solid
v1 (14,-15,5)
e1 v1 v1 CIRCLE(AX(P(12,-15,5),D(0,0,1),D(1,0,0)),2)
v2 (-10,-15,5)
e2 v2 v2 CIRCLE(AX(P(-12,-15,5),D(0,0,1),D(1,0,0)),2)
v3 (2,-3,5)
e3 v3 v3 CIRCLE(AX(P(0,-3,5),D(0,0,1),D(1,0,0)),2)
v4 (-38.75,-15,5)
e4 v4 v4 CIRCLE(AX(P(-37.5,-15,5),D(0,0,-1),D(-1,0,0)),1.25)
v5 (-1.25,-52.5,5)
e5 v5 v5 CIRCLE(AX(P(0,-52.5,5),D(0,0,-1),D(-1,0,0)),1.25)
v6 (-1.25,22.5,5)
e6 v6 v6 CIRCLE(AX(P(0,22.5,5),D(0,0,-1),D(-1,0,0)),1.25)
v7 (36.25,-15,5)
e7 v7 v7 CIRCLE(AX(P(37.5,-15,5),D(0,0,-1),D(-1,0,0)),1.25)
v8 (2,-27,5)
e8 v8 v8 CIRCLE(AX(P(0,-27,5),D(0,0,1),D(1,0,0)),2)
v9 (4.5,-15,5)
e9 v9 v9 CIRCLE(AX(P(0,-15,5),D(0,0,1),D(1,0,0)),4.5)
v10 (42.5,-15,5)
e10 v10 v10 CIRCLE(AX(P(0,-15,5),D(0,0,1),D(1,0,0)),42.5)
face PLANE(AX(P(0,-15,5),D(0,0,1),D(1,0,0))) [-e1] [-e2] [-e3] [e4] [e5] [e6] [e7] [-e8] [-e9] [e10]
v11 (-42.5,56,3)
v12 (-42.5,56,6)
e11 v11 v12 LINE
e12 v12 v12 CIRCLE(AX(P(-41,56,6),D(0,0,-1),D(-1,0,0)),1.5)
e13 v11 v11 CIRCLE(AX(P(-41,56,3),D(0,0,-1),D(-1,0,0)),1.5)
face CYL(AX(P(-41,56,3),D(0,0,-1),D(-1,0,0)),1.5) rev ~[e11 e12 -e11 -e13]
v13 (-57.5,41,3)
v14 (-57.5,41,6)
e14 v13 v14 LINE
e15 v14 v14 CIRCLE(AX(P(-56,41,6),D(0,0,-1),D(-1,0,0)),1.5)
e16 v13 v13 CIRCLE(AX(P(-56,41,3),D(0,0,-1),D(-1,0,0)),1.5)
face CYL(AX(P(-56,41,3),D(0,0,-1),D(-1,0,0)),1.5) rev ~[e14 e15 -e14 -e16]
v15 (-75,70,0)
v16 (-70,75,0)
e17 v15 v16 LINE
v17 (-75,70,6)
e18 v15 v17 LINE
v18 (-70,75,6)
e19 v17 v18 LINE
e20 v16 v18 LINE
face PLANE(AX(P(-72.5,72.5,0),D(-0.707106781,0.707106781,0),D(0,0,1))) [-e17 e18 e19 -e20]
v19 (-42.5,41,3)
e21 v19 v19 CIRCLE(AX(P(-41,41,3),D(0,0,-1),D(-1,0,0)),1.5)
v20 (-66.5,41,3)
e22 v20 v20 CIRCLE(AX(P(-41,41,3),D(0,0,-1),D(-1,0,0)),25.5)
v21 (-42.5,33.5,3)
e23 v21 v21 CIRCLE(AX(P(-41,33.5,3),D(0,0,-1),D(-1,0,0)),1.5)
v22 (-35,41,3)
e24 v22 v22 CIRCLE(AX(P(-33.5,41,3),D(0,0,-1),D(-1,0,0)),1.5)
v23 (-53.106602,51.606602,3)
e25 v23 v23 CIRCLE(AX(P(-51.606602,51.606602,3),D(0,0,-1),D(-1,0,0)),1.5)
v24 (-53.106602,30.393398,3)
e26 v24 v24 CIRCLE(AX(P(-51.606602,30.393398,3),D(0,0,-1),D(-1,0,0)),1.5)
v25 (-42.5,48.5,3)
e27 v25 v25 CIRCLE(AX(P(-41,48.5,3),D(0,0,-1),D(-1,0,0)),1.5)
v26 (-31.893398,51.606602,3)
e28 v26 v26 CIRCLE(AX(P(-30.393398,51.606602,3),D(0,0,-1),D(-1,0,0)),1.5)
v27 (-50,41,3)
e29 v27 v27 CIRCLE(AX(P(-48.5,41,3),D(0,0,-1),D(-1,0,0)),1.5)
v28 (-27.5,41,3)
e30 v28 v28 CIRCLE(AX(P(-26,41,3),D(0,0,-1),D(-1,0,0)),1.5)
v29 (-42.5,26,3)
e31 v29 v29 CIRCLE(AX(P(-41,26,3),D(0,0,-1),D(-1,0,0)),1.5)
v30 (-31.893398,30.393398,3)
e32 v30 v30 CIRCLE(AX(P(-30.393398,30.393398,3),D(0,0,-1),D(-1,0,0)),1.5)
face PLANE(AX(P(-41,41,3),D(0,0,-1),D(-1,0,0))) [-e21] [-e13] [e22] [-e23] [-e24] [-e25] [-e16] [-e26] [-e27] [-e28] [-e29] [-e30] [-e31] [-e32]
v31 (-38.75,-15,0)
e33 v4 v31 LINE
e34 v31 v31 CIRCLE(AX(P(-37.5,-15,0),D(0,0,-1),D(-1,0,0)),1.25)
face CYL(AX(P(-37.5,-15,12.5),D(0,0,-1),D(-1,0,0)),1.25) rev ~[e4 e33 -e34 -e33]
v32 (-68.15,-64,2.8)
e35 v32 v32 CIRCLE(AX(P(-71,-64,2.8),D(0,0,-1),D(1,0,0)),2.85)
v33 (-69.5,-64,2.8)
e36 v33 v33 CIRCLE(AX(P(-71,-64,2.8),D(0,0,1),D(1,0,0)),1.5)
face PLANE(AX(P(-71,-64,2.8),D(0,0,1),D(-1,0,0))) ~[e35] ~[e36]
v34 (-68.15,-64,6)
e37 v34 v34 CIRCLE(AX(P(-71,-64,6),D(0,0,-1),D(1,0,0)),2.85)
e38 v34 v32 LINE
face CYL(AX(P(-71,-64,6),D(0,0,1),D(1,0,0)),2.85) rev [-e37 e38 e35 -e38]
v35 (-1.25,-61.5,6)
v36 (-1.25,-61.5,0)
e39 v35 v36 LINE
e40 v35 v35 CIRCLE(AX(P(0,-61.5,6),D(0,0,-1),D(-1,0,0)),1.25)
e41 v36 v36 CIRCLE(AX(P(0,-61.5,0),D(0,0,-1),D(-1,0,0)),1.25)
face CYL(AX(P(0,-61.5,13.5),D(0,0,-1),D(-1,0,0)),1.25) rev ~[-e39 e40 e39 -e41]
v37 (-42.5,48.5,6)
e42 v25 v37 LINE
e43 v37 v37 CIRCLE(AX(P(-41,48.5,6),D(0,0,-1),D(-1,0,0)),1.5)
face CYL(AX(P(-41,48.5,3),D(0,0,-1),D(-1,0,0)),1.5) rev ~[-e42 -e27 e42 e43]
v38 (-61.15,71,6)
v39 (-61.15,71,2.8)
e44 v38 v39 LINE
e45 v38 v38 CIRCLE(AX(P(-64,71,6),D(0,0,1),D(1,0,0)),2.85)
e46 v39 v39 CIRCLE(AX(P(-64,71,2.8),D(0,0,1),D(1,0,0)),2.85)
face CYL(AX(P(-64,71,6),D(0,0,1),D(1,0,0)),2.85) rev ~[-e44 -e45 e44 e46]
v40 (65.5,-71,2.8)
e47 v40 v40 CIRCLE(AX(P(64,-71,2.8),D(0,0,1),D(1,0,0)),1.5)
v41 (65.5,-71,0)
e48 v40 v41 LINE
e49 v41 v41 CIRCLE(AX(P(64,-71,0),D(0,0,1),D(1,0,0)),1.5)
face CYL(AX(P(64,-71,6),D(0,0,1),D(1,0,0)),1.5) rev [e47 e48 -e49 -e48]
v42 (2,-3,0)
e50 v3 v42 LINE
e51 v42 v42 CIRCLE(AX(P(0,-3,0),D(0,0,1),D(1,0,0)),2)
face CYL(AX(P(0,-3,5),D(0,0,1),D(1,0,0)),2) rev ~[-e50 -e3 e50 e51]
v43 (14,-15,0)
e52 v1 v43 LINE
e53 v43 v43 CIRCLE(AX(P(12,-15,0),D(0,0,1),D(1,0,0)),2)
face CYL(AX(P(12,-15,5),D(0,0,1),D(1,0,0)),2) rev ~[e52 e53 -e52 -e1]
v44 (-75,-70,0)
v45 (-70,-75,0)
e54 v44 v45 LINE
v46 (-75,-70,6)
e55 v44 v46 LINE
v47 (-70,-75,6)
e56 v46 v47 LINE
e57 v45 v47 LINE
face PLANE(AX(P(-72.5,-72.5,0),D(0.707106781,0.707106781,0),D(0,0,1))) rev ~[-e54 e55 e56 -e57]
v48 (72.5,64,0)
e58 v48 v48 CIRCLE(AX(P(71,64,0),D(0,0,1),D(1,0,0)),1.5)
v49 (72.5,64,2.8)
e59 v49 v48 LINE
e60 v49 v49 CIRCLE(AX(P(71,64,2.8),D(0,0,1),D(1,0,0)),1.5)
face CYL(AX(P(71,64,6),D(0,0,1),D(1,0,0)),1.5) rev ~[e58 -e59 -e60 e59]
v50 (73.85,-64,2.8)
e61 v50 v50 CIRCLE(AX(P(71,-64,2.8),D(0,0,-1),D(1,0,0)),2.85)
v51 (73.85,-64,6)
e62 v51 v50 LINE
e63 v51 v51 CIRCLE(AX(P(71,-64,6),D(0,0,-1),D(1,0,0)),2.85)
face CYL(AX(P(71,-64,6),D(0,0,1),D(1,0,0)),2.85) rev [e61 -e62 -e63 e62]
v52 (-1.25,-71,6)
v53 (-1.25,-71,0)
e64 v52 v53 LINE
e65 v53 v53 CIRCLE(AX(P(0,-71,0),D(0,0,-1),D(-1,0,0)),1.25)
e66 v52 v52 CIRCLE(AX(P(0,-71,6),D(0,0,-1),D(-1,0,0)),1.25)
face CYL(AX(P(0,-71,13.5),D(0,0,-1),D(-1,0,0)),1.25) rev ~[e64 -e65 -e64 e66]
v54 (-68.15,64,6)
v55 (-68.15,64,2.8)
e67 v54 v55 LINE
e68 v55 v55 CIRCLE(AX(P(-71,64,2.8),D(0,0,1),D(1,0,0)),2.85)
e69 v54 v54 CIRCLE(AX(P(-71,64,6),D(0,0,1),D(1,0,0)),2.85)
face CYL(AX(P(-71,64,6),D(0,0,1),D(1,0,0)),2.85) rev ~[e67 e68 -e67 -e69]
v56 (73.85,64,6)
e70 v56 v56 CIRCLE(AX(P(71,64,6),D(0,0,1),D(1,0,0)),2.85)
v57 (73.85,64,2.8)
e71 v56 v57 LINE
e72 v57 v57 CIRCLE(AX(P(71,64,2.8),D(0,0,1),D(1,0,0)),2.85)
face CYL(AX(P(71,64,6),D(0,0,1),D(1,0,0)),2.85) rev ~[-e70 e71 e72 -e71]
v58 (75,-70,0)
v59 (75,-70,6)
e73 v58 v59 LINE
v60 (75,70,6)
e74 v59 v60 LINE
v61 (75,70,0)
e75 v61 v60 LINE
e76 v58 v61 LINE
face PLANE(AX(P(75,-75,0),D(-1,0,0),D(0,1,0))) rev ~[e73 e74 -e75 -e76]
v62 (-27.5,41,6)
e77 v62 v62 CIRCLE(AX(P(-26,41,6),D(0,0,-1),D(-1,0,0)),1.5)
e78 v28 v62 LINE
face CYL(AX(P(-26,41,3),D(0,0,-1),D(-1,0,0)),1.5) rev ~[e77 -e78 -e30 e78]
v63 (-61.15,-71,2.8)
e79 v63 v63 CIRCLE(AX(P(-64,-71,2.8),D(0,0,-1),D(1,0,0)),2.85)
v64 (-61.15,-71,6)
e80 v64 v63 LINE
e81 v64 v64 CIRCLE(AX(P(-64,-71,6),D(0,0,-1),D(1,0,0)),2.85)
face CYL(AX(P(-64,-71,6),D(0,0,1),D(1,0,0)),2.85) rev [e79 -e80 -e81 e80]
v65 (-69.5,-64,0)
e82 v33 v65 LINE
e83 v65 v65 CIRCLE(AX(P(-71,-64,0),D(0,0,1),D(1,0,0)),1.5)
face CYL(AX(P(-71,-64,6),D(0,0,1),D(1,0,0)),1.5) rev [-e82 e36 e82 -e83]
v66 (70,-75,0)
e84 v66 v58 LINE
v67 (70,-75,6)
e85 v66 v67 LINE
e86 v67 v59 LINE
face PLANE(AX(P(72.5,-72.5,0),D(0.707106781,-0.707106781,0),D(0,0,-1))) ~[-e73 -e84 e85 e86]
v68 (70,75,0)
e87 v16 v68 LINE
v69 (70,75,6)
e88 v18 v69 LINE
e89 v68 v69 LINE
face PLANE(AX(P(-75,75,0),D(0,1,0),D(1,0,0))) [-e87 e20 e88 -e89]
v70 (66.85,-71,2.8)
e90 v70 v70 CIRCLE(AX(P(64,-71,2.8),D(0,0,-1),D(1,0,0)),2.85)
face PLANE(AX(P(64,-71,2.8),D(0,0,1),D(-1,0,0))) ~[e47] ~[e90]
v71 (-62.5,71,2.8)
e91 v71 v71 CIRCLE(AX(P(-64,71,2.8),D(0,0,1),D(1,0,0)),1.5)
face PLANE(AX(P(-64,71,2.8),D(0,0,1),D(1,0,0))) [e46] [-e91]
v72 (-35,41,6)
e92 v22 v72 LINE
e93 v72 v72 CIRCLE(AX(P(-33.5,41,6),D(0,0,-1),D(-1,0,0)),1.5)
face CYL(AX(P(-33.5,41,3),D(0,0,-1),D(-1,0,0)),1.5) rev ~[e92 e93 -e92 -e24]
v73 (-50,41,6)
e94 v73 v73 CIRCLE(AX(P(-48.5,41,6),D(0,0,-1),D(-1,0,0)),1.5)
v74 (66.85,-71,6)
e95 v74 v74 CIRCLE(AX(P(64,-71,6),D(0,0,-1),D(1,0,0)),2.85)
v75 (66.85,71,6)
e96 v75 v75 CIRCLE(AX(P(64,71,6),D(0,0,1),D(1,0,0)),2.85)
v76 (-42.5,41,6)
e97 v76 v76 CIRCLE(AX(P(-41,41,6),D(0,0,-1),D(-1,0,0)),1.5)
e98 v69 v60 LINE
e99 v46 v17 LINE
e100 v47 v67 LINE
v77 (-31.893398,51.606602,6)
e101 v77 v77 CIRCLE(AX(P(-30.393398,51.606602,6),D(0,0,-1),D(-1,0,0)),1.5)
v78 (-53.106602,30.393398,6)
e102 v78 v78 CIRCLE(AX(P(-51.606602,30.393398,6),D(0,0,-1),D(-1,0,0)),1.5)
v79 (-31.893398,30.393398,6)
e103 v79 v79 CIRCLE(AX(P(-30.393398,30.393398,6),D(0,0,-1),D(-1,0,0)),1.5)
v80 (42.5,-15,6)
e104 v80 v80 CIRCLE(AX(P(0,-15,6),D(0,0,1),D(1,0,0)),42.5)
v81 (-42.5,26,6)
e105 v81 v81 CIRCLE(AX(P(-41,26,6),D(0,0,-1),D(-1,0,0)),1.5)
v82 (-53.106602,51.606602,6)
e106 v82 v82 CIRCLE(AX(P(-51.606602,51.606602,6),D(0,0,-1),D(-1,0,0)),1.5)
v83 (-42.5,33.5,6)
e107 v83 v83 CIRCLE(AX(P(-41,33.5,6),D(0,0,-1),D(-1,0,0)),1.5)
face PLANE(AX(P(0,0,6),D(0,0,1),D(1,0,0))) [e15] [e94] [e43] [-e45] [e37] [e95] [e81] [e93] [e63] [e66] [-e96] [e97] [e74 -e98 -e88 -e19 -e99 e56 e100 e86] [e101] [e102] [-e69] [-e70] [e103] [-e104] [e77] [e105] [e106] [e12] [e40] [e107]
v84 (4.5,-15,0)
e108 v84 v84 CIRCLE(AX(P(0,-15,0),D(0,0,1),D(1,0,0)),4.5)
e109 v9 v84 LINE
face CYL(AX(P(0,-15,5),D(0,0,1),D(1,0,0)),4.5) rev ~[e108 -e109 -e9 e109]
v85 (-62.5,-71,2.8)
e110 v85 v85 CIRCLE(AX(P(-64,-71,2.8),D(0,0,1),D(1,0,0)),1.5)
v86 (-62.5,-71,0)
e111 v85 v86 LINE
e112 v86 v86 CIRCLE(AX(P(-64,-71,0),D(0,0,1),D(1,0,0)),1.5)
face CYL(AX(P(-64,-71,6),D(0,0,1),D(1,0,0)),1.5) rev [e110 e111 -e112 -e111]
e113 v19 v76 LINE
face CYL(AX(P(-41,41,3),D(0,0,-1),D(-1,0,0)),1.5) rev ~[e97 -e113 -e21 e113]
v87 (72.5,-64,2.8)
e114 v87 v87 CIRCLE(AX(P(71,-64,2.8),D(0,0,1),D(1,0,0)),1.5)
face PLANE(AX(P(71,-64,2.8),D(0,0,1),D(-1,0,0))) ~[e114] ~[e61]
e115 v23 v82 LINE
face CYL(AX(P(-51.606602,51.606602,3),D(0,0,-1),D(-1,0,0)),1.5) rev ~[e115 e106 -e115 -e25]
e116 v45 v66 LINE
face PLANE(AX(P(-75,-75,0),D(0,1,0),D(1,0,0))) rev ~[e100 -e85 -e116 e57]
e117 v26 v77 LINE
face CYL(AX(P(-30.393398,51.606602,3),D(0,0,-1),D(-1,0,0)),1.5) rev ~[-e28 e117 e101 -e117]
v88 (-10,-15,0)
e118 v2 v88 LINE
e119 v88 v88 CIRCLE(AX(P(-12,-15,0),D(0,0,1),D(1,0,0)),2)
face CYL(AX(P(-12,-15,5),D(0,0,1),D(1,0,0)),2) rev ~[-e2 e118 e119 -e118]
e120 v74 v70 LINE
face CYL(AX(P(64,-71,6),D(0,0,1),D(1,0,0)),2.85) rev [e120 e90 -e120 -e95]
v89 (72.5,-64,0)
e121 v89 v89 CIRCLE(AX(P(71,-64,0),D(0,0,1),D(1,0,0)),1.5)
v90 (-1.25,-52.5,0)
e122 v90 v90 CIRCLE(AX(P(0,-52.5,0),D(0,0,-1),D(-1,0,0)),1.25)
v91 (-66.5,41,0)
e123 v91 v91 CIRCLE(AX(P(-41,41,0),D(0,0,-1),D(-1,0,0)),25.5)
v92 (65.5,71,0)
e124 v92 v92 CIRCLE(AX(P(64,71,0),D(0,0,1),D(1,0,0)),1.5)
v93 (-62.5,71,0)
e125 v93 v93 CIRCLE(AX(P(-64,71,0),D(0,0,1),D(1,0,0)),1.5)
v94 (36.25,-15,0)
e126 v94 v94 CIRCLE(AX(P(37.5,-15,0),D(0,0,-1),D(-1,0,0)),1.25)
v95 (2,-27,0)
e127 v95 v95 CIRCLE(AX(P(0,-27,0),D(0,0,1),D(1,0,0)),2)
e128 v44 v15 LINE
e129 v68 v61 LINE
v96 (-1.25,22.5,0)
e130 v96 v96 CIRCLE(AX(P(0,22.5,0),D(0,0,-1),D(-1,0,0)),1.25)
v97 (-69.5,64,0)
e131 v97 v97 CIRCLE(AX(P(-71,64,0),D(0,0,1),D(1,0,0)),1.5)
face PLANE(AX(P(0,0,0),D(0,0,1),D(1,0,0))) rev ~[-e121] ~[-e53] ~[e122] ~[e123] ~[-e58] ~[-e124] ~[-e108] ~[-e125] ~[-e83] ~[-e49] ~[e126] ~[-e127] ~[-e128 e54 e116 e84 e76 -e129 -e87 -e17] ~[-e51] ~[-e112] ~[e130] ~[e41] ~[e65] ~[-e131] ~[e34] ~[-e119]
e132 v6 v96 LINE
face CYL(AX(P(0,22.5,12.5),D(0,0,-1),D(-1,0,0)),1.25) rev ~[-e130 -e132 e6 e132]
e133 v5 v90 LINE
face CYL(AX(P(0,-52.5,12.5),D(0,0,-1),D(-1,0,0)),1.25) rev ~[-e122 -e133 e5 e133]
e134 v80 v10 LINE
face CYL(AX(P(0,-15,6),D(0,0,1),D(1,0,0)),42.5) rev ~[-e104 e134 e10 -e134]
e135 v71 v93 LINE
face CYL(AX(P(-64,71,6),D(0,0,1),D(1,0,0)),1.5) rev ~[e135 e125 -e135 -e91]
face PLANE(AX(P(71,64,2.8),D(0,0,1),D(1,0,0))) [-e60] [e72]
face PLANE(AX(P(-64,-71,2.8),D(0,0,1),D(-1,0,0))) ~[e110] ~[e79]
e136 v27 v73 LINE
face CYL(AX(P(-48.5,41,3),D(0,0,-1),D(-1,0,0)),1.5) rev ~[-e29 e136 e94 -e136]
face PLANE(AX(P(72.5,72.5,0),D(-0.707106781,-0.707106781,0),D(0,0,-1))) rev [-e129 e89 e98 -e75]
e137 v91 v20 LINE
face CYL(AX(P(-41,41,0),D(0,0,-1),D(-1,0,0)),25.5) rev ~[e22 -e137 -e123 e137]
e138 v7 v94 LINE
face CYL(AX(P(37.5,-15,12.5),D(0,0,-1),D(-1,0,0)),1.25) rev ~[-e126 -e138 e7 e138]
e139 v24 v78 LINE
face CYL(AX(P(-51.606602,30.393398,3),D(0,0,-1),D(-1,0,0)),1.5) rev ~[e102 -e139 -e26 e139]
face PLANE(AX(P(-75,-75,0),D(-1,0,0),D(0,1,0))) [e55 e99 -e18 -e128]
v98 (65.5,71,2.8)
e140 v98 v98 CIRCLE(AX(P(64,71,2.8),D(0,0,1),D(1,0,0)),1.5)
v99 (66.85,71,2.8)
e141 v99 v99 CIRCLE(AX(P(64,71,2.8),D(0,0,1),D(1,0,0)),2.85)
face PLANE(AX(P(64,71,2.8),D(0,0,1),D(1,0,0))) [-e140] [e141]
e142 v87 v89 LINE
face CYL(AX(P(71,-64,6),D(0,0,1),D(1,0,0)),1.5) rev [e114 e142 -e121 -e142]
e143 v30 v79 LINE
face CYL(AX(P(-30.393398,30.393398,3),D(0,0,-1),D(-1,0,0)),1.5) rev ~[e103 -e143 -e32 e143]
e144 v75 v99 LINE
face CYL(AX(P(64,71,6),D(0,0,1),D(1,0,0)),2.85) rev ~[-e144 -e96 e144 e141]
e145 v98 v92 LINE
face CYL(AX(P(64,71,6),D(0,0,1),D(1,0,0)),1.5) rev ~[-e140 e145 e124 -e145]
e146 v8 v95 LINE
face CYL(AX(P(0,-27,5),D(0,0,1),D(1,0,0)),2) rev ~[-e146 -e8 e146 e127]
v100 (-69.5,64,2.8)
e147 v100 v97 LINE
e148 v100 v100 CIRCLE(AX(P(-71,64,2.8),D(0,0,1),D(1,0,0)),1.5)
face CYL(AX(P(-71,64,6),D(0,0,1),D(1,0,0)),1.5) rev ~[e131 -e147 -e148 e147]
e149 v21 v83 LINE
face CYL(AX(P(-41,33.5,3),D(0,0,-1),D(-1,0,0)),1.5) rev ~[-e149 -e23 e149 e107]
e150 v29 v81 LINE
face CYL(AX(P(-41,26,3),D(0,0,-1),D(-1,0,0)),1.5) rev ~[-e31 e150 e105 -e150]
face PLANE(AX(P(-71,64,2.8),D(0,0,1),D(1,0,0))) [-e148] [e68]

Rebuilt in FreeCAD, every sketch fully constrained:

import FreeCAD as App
import Part
import Sketcher


def edges_at(feature, points):
    """Names of the edges that pass closest to the given points."""
    edges = feature.Shape.Edges
    near = lambda p: min(range(len(edges)), key=lambda i: edges[i].distToShape(Part.Vertex(*p))[0])
    return sorted({f"Edge{near(p) + 1}" for p in points})


def add_polygon(sketch, points):
    """Adds a closed chain of lines whose ends are joined by coincident constraints."""
    first, n = sketch.GeometryCount, len(points)
    for a, b in zip(points, points[1:] + points[:1]):
        sketch.addGeometry(Part.LineSegment(App.Vector(*a, 0), App.Vector(*b, 0)), False)
    for i in range(n):
        sketch.addConstraint(Sketcher.Constraint("Coincident", first + i, 2, first + (i + 1) % n, 1))

doc = App.newDocument("Part")
params = doc.addObject("Spreadsheet::Sheet", "Params")
for row, (alias, value) in enumerate([
    ("sketch1_width", "150 mm"),
    ("pad1_length", "6 mm"),
    ("sketch2_diameter", "85 mm"),
    ("pocket1_length", "1 mm"),
    ("chamfer_size", "5 mm"),
    ("sketch3_diameter", "3 mm"),
    ("pocket2_length", "10 mm"),
    ("sketch4_diameter", "5.7 mm"),
    ("pocket3_length", "3.2 mm"),
    ("sketch5_diameter", "3 mm"),
    ("pocket4_length", "10 mm"),
    ("sketch6_diameter", "5.7 mm"),
    ("pocket5_length", "3.2 mm"),
    ("sketch7_diameter", "9 mm"),
    ("pocket6_length", "10 mm"),
    ("sketch8_diameter", "4 mm"),
    ("pocket7_length", "10 mm"),
    ("sketch9_diameter", "2 mm"),
    ("pocket8_length", "10 mm"),
    ("sketch10_diameter", "2.5 mm"),
    ("hole_diameter", "2.5 mm"),
    ("hole_depth", "7.5 mm"),
    ("sketch11_diameter", "51 mm"),
    ("pocket9_length", "3 mm"),
    ("sketch12_diameter", "3 mm"),
    ("pocket10_length", "3 mm"),
    ("sketch13_diameter", "2 mm"),
    ("pocket11_length", "10 mm"),
    ("sketch14_diameter", "2.5 mm"),
    ("hole2_diameter", "2.5 mm"),
    ("hole2_depth", "7.5 mm"),
], start=1):
    params.set(f"A{row}", alias)
    params.set(f"B{row}", "=" + value)
    params.setAlias(f"B{row}", alias)

body = doc.addObject("PartDesign::Body", "Body")

# Sketch on XY plane
sketch1 = body.newObject("Sketcher::SketchObject", "Sketch")
sketch1.AttachmentSupport = (doc.getObject("XY_Plane"), [""])
sketch1.MapMode = "FlatFace"
add_polygon(sketch1, [(-75, 75), (-75, -75), (75, -75), (75, 75)])  # lines 0-3
sketch1.addConstraint(Sketcher.Constraint("Vertical", 0))
sketch1.addConstraint(Sketcher.Constraint("Horizontal", 1))
sketch1.addConstraint(Sketcher.Constraint("Vertical", 2))
sketch1.addConstraint(Sketcher.Constraint("Horizontal", 3))
sketch1.addConstraint(Sketcher.Constraint("Symmetric", 0, 2, 2, 2, -1, 1))
sketch1.addConstraint(Sketcher.Constraint("Equal", 3, 0))
sketch1.addConstraint(Sketcher.Constraint("DistanceX", 1, 1, 1, 2, 150.0))
sketch1.setExpression("Constraints[10]", "Params.sketch1_width")
pad1 = body.newObject("PartDesign::Pad", "Pad")
pad1.Profile = sketch1
pad1.setExpression("Length", "Params.pad1_length")

# Sketch on XY plane
sketch2 = body.newObject("Sketcher::SketchObject", "Sketch001")
sketch2.AttachmentSupport = (doc.getObject("XY_Plane"), [""])
sketch2.MapMode = "FlatFace"
sketch2.AttachmentOffset = App.Placement(App.Vector(0, 0, 6), App.Rotation())
sketch2.addGeometry(Part.Circle(App.Vector(0, -15, 0), App.Vector(0, 0, 1), 42), False)
sketch2.addConstraint(Sketcher.Constraint("PointOnObject", 0, 3, -2))
sketch2.addConstraint(Sketcher.Constraint("Diameter", 0, 85.0))
sketch2.addConstraint(Sketcher.Constraint("DistanceY", 0, 3, -1, 1, 15.0))
sketch2.setExpression("Constraints[1]", "Params.sketch2_diameter")
pocket1 = body.newObject("PartDesign::Pocket", "Pocket")
pocket1.Profile = sketch2
pocket1.setExpression("Length", "Params.pocket1_length")
doc.recompute()

chamfer = body.newObject("PartDesign::Chamfer", "Chamfer")
chamfer.Base = (pocket1, edges_at(pocket1, [
    (-75, 75, 3),
    (75, 75, 3),
    (75, -75, 3),
    (-75, -75, 3),
]))
chamfer.setExpression("Size", "Params.chamfer_size")

# Sketch on XY plane
sketch3 = body.newObject("Sketcher::SketchObject", "Sketch002")
sketch3.AttachmentSupport = (doc.getObject("XY_Plane"), [""])
sketch3.MapMode = "FlatFace"
sketch3.AttachmentOffset = App.Placement(App.Vector(0, 0, 6), App.Rotation())
sketch3.addGeometry(Part.Circle(App.Vector(64, 71, 0), App.Vector(0, 0, 1), 1.5), False)
sketch3.addGeometry(Part.Circle(App.Vector(71, 64, 0), App.Vector(0, 0, 1), 1.5), False)
sketch3.addConstraint(Sketcher.Constraint("Equal", 0, 1))
sketch3.addConstraint(Sketcher.Constraint("Diameter", 0, 3.0))
sketch3.addConstraint(Sketcher.Constraint("DistanceX", -1, 1, 0, 3, 64.0))
sketch3.addConstraint(Sketcher.Constraint("DistanceY", -1, 1, 0, 3, 71.0))
sketch3.addConstraint(Sketcher.Constraint("DistanceX", -1, 1, 1, 3, 71.0))
sketch3.addConstraint(Sketcher.Constraint("DistanceY", -1, 1, 1, 3, 64.0))
sketch3.setExpression("Constraints[1]", "Params.sketch3_diameter")
pocket2 = body.newObject("PartDesign::Pocket", "Pocket001")
pocket2.Profile = sketch3
pocket2.setExpression("Length", "Params.pocket2_length")

# Sketch on XY plane
sketch4 = body.newObject("Sketcher::SketchObject", "Sketch003")
sketch4.AttachmentSupport = (doc.getObject("XY_Plane"), [""])
sketch4.MapMode = "FlatFace"
sketch4.AttachmentOffset = App.Placement(App.Vector(0, 0, 6), App.Rotation())
sketch4.addGeometry(Part.Circle(App.Vector(64, 71, 0), App.Vector(0, 0, 1), 2.9), False)
sketch4.addGeometry(Part.Circle(App.Vector(71, 64, 0), App.Vector(0, 0, 1), 2.9), False)
sketch4.addConstraint(Sketcher.Constraint("Equal", 0, 1))
sketch4.addConstraint(Sketcher.Constraint("Diameter", 0, 5.7))
sketch4.addConstraint(Sketcher.Constraint("DistanceX", -1, 1, 0, 3, 64.0))
sketch4.addConstraint(Sketcher.Constraint("DistanceY", -1, 1, 0, 3, 71.0))
sketch4.addConstraint(Sketcher.Constraint("DistanceX", -1, 1, 1, 3, 71.0))
sketch4.addConstraint(Sketcher.Constraint("DistanceY", -1, 1, 1, 3, 64.0))
sketch4.setExpression("Constraints[1]", "Params.sketch4_diameter")
pocket3 = body.newObject("PartDesign::Pocket", "Pocket002")
pocket3.Profile = sketch4
pocket3.setExpression("Length", "Params.pocket3_length")

# Sketch on XY plane
sketch5 = body.newObject("Sketcher::SketchObject", "Sketch004")
sketch5.AttachmentSupport = (doc.getObject("XY_Plane"), [""])
sketch5.MapMode = "FlatFace"
sketch5.AttachmentOffset = App.Placement(App.Vector(0, 0, 6), App.Rotation())
sketch5.addGeometry(Part.Circle(App.Vector(-64, 71, 0), App.Vector(0, 0, 1), 1.5), False)
sketch5.addGeometry(Part.Circle(App.Vector(-71, 64, 0), App.Vector(0, 0, 1), 1.5), False)
sketch5.addConstraint(Sketcher.Constraint("Equal", 0, 1))
sketch5.addConstraint(Sketcher.Constraint("Diameter", 0, 3.0))
sketch5.addConstraint(Sketcher.Constraint("DistanceX", 0, 3, -1, 1, 64.0))
sketch5.addConstraint(Sketcher.Constraint("DistanceY", -1, 1, 0, 3, 71.0))
sketch5.addConstraint(Sketcher.Constraint("DistanceX", 1, 3, -1, 1, 71.0))
sketch5.addConstraint(Sketcher.Constraint("DistanceY", -1, 1, 1, 3, 64.0))
sketch5.setExpression("Constraints[1]", "Params.sketch5_diameter")
pocket4 = body.newObject("PartDesign::Pocket", "Pocket003")
pocket4.Profile = sketch5
pocket4.setExpression("Length", "Params.pocket4_length")

# Sketch on XY plane
sketch6 = body.newObject("Sketcher::SketchObject", "Sketch005")
sketch6.AttachmentSupport = (doc.getObject("XY_Plane"), [""])
sketch6.MapMode = "FlatFace"
sketch6.AttachmentOffset = App.Placement(App.Vector(0, 0, 6), App.Rotation())
sketch6.addGeometry(Part.Circle(App.Vector(-64, 71, 0), App.Vector(0, 0, 1), 2.9), False)
sketch6.addGeometry(Part.Circle(App.Vector(-71, 64, 0), App.Vector(0, 0, 1), 2.9), False)
sketch6.addConstraint(Sketcher.Constraint("Equal", 0, 1))
sketch6.addConstraint(Sketcher.Constraint("Diameter", 0, 5.7))
sketch6.addConstraint(Sketcher.Constraint("DistanceX", 0, 3, -1, 1, 64.0))
sketch6.addConstraint(Sketcher.Constraint("DistanceY", -1, 1, 0, 3, 71.0))
sketch6.addConstraint(Sketcher.Constraint("DistanceX", 1, 3, -1, 1, 71.0))
sketch6.addConstraint(Sketcher.Constraint("DistanceY", -1, 1, 1, 3, 64.0))
sketch6.setExpression("Constraints[1]", "Params.sketch6_diameter")
pocket5 = body.newObject("PartDesign::Pocket", "Pocket004")
pocket5.Profile = sketch6
pocket5.setExpression("Length", "Params.pocket5_length")
doc.recompute()

mirrored = body.newObject("PartDesign::Mirrored", "Mirrored")
mirrored.Originals = [pocket2, pocket3, pocket4, pocket5]
mirrored.MirrorPlane = (doc.getObject("XZ_Plane"), [""])
body.Tip = mirrored

# Sketch on XY plane
sketch7 = body.newObject("Sketcher::SketchObject", "Sketch006")
sketch7.AttachmentSupport = (doc.getObject("XY_Plane"), [""])
sketch7.MapMode = "FlatFace"
sketch7.AttachmentOffset = App.Placement(App.Vector(0, 0, 5), App.Rotation())
sketch7.addGeometry(Part.Circle(App.Vector(0, -15, 0), App.Vector(0, 0, 1), 4.5), False)
sketch7.addConstraint(Sketcher.Constraint("PointOnObject", 0, 3, -2))
sketch7.addConstraint(Sketcher.Constraint("Diameter", 0, 9.0))
sketch7.addConstraint(Sketcher.Constraint("DistanceY", 0, 3, -1, 1, 15.0))
sketch7.setExpression("Constraints[1]", "Params.sketch7_diameter")
pocket6 = body.newObject("PartDesign::Pocket", "Pocket005")
pocket6.Profile = sketch7
pocket6.setExpression("Length", "Params.pocket6_length")

# Sketch on XY plane
sketch8 = body.newObject("Sketcher::SketchObject", "Sketch007")
sketch8.AttachmentSupport = (doc.getObject("XY_Plane"), [""])
sketch8.MapMode = "FlatFace"
sketch8.AttachmentOffset = App.Placement(App.Vector(0, 0, 5), App.Rotation())
sketch8.addGeometry(Part.Circle(App.Vector(-12, -15, 0), App.Vector(0, 0, 1), 2), False)
sketch8.addGeometry(Part.Circle(App.Vector(12, -15, 0), App.Vector(0, 0, 1), 2), False)
sketch8.addGeometry(Part.Circle(App.Vector(0, -27, 0), App.Vector(0, 0, 1), 2), False)
sketch8.addGeometry(Part.Circle(App.Vector(0, -3, 0), App.Vector(0, 0, 1), 2), False)
sketch8.addConstraint(Sketcher.Constraint("Equal", 0, 1))
sketch8.addConstraint(Sketcher.Constraint("Equal", 1, 2))
sketch8.addConstraint(Sketcher.Constraint("Equal", 2, 3))
sketch8.addConstraint(Sketcher.Constraint("Symmetric", 0, 3, 1, 3, -2))
sketch8.addConstraint(Sketcher.Constraint("PointOnObject", 2, 3, -2))
sketch8.addConstraint(Sketcher.Constraint("PointOnObject", 3, 3, -2))
sketch8.addConstraint(Sketcher.Constraint("Diameter", 0, 4.0))
sketch8.addConstraint(Sketcher.Constraint("DistanceX", 0, 3, -1, 1, 12.0))
sketch8.addConstraint(Sketcher.Constraint("DistanceY", 0, 3, -1, 1, 15.0))
sketch8.addConstraint(Sketcher.Constraint("DistanceY", 2, 3, -1, 1, 27.0))
sketch8.addConstraint(Sketcher.Constraint("DistanceY", 3, 3, -1, 1, 3.0))
sketch8.setExpression("Constraints[6]", "Params.sketch8_diameter")
pocket7 = body.newObject("PartDesign::Pocket", "Pocket006")
pocket7.Profile = sketch8
pocket7.setExpression("Length", "Params.pocket7_length")

# Sketch on XY plane
sketch9 = body.newObject("Sketcher::SketchObject", "Sketch008")
sketch9.AttachmentSupport = (doc.getObject("XY_Plane"), [""])
sketch9.MapMode = "FlatFace"
sketch9.AttachmentOffset = App.Placement(App.Vector(0, 0, 5), App.Rotation())
sketch9.addGeometry(Part.Circle(App.Vector(0, 22.5, 0), App.Vector(0, 0, 1), 1), False)
sketch9.addGeometry(Part.Circle(App.Vector(37.5, -15, 0), App.Vector(0, 0, 1), 1), False)
sketch9.addGeometry(Part.Circle(App.Vector(0, -52.5, 0), App.Vector(0, 0, 1), 1), False)
sketch9.addGeometry(Part.Circle(App.Vector(-37.5, -15, 0), App.Vector(0, 0, 1), 1), False)
sketch9.addConstraint(Sketcher.Constraint("Equal", 0, 1))
sketch9.addConstraint(Sketcher.Constraint("Equal", 1, 2))
sketch9.addConstraint(Sketcher.Constraint("Equal", 2, 3))
sketch9.addConstraint(Sketcher.Constraint("Symmetric", 1, 3, 3, 3, -2))
sketch9.addConstraint(Sketcher.Constraint("PointOnObject", 0, 3, -2))
sketch9.addConstraint(Sketcher.Constraint("PointOnObject", 2, 3, -2))
sketch9.addConstraint(Sketcher.Constraint("Diameter", 0, 2.0))
sketch9.addConstraint(Sketcher.Constraint("DistanceY", 1, 3, -1, 1, 15.0))
sketch9.addConstraint(Sketcher.Constraint("DistanceY", 2, 3, 0, 3, 75.0))
sketch9.addConstraint(Sketcher.Constraint("DistanceX", 3, 3, 1, 3, 75.0))
sketch9.addConstraint(Sketcher.Constraint("DistanceY", -1, 1, 0, 3, 22.5))
sketch9.setExpression("Constraints[6]", "Params.sketch9_diameter")
pocket8 = body.newObject("PartDesign::Pocket", "Pocket007")
pocket8.Profile = sketch9
pocket8.setExpression("Length", "Params.pocket8_length")

# Sketch on XY plane
sketch10 = body.newObject("Sketcher::SketchObject", "Sketch009")
sketch10.AttachmentSupport = (doc.getObject("XY_Plane"), [""])
sketch10.MapMode = "FlatFace"
sketch10.AttachmentOffset = App.Placement(App.Vector(0, 0, 5), App.Rotation())
sketch10.addGeometry(Part.Circle(App.Vector(0, 22.5, 0), App.Vector(0, 0, 1), 1.2), False)
sketch10.addGeometry(Part.Circle(App.Vector(-37.5, -15, 0), App.Vector(0, 0, 1), 1.2), False)
sketch10.addGeometry(Part.Circle(App.Vector(0, -52.5, 0), App.Vector(0, 0, 1), 1.2), False)
sketch10.addGeometry(Part.Circle(App.Vector(37.5, -15, 0), App.Vector(0, 0, 1), 1.2), False)
sketch10.addConstraint(Sketcher.Constraint("Equal", 0, 1))
sketch10.addConstraint(Sketcher.Constraint("Equal", 1, 2))
sketch10.addConstraint(Sketcher.Constraint("Equal", 2, 3))
sketch10.addConstraint(Sketcher.Constraint("Symmetric", 1, 3, 3, 3, -2))
sketch10.addConstraint(Sketcher.Constraint("PointOnObject", 0, 3, -2))
sketch10.addConstraint(Sketcher.Constraint("PointOnObject", 2, 3, -2))
sketch10.addConstraint(Sketcher.Constraint("Diameter", 0, 2.5))
sketch10.addConstraint(Sketcher.Constraint("DistanceY", 1, 3, -1, 1, 15.0))
sketch10.addConstraint(Sketcher.Constraint("DistanceY", 2, 3, 0, 3, 75.0))
sketch10.addConstraint(Sketcher.Constraint("DistanceX", 1, 3, 3, 3, 75.0))
sketch10.addConstraint(Sketcher.Constraint("DistanceY", -1, 1, 0, 3, 22.5))
sketch10.setExpression("Constraints[6]", "Params.sketch10_diameter")
doc.recompute()
hole = body.newObject("PartDesign::Hole", "Hole")
hole.Profile = sketch10
hole.ThreadType = "None"
hole.setExpression("Diameter", "Params.hole_diameter")
hole.DepthType = "Dimension"
hole.setExpression("Depth", "Params.hole_depth")
hole.DrillPoint = "Angled"
hole.DrillPointAngle = 118

# Sketch on XY plane
sketch11 = body.newObject("Sketcher::SketchObject", "Sketch010")
sketch11.AttachmentSupport = (doc.getObject("XY_Plane"), [""])
sketch11.MapMode = "FlatFace"
sketch11.addGeometry(Part.Circle(App.Vector(-41, 41, 0), App.Vector(0, 0, 1), 26), False)
sketch11.addConstraint(Sketcher.Constraint("Diameter", 0, 51.0))
sketch11.addConstraint(Sketcher.Constraint("DistanceX", 0, 3, -1, 1, 41.0))
sketch11.addConstraint(Sketcher.Constraint("DistanceY", -1, 1, 0, 3, 41.0))
sketch11.setExpression("Constraints[0]", "Params.sketch11_diameter")
pocket9 = body.newObject("PartDesign::Pocket", "Pocket008")
pocket9.Profile = sketch11
pocket9.setExpression("Length", "Params.pocket9_length")
pocket9.Reversed = True

# Sketch on XY plane
sketch12 = body.newObject("Sketcher::SketchObject", "Sketch011")
sketch12.AttachmentSupport = (doc.getObject("XY_Plane"), [""])
sketch12.MapMode = "FlatFace"
sketch12.AttachmentOffset = App.Placement(App.Vector(0, 0, 3), App.Rotation())
sketch12.addGeometry(Part.Circle(App.Vector(-41, 41, 0), App.Vector(0, 0, 1), 1.5), False)
sketch12.addGeometry(Part.Circle(App.Vector(-41, 48.5, 0), App.Vector(0, 0, 1), 1.5), False)
sketch12.addGeometry(Part.Circle(App.Vector(-48.5, 41, 0), App.Vector(0, 0, 1), 1.5), False)
sketch12.addGeometry(Part.Circle(App.Vector(-41, 33.5, 0), App.Vector(0, 0, 1), 1.5), False)
sketch12.addGeometry(Part.Circle(App.Vector(-33.5, 41, 0), App.Vector(0, 0, 1), 1.5), False)
sketch12.addGeometry(Part.Circle(App.Vector(-41, 56, 0), App.Vector(0, 0, 1), 1.5), False)
sketch12.addGeometry(Part.Circle(App.Vector(-51.6, 51.6, 0), App.Vector(0, 0, 1), 1.5), False)
sketch12.addGeometry(Part.Circle(App.Vector(-56, 41, 0), App.Vector(0, 0, 1), 1.5), False)
sketch12.addGeometry(Part.Circle(App.Vector(-51.6, 30.4, 0), App.Vector(0, 0, 1), 1.5), False)
sketch12.addGeometry(Part.Circle(App.Vector(-41, 26, 0), App.Vector(0, 0, 1), 1.5), False)
sketch12.addGeometry(Part.Circle(App.Vector(-30.4, 30.4, 0), App.Vector(0, 0, 1), 1.5), False)
sketch12.addGeometry(Part.Circle(App.Vector(-26, 41, 0), App.Vector(0, 0, 1), 1.5), False)
sketch12.addGeometry(Part.Circle(App.Vector(-30.4, 51.6, 0), App.Vector(0, 0, 1), 1.5), False)
sketch12.addConstraint(Sketcher.Constraint("Equal", 0, 1))
sketch12.addConstraint(Sketcher.Constraint("Equal", 1, 2))
sketch12.addConstraint(Sketcher.Constraint("Equal", 2, 3))
sketch12.addConstraint(Sketcher.Constraint("Equal", 3, 4))
sketch12.addConstraint(Sketcher.Constraint("Equal", 4, 5))
sketch12.addConstraint(Sketcher.Constraint("Equal", 5, 6))
sketch12.addConstraint(Sketcher.Constraint("Equal", 6, 7))
sketch12.addConstraint(Sketcher.Constraint("Equal", 7, 8))
sketch12.addConstraint(Sketcher.Constraint("Equal", 8, 9))
sketch12.addConstraint(Sketcher.Constraint("Equal", 9, 10))
sketch12.addConstraint(Sketcher.Constraint("Equal", 10, 11))
sketch12.addConstraint(Sketcher.Constraint("Equal", 11, 12))
sketch12.addConstraint(Sketcher.Constraint("Horizontal", 0, 3, 2, 3))
sketch12.addConstraint(Sketcher.Constraint("Horizontal", 2, 3, 4, 3))
sketch12.addConstraint(Sketcher.Constraint("Horizontal", 4, 3, 7, 3))
sketch12.addConstraint(Sketcher.Constraint("Horizontal", 8, 3, 10, 3))
sketch12.addConstraint(Sketcher.Constraint("Horizontal", 7, 3, 11, 3))
sketch12.addConstraint(Sketcher.Constraint("Horizontal", 6, 3, 12, 3))
sketch12.addConstraint(Sketcher.Constraint("Vertical", 0, 3, 1, 3))
sketch12.addConstraint(Sketcher.Constraint("Vertical", 1, 3, 3, 3))
sketch12.addConstraint(Sketcher.Constraint("Vertical", 3, 3, 5, 3))
sketch12.addConstraint(Sketcher.Constraint("Vertical", 6, 3, 8, 3))
sketch12.addConstraint(Sketcher.Constraint("Vertical", 5, 3, 9, 3))
sketch12.addConstraint(Sketcher.Constraint("Vertical", 10, 3, 12, 3))
sketch12.addConstraint(Sketcher.Constraint("Diameter", 0, 3.0))
sketch12.addConstraint(Sketcher.Constraint("DistanceX", 0, 3, -1, 1, 41.0))
sketch12.addConstraint(Sketcher.Constraint("DistanceY", -1, 1, 0, 3, 41.0))
sketch12.addConstraint(Sketcher.Constraint("DistanceY", -1, 1, 5, 3, 56.0))
sketch12.addConstraint(Sketcher.Constraint("DistanceX", 7, 3, -1, 1, 56.0))
sketch12.addConstraint(Sketcher.Constraint("DistanceY", -1, 1, 9, 3, 26.0))
sketch12.addConstraint(Sketcher.Constraint("DistanceX", 11, 3, -1, 1, 26.0))
sketch12.addConstraint(Sketcher.Constraint("DistanceY", 3, 3, 1, 3, 15.0))
sketch12.addConstraint(Sketcher.Constraint("DistanceX", 2, 3, 4, 3, 15.0))
sketch12.addConstraint(Sketcher.Constraint("DistanceY", -1, 1, 1, 3, 48.5))
sketch12.addConstraint(Sketcher.Constraint("DistanceX", 2, 3, -1, 1, 48.5))
sketch12.addConstraint(Sketcher.Constraint("DistanceX", 6, 3, -1, 1, 51.606602))
sketch12.addConstraint(Sketcher.Constraint("DistanceY", -1, 1, 6, 3, 51.606602))
sketch12.addConstraint(Sketcher.Constraint("DistanceY", -1, 1, 8, 3, 30.393398))
sketch12.addConstraint(Sketcher.Constraint("DistanceX", 10, 3, -1, 1, 30.393398))
sketch12.setExpression("Constraints[24]", "Params.sketch12_diameter")
pocket10 = body.newObject("PartDesign::Pocket", "Pocket009")
pocket10.Profile = sketch12
pocket10.setExpression("Length", "Params.pocket10_length")
pocket10.Reversed = True

# Sketch on XY plane
sketch13 = body.newObject("Sketcher::SketchObject", "Sketch012")
sketch13.AttachmentSupport = (doc.getObject("XY_Plane"), [""])
sketch13.MapMode = "FlatFace"
sketch13.AttachmentOffset = App.Placement(App.Vector(0, 0, 6), App.Rotation())
sketch13.addGeometry(Part.Circle(App.Vector(0, -61.5, 0), App.Vector(0, 0, 1), 1), False)
sketch13.addGeometry(Part.Circle(App.Vector(0, -71, 0), App.Vector(0, 0, 1), 1), False)
sketch13.addConstraint(Sketcher.Constraint("Equal", 0, 1))
sketch13.addConstraint(Sketcher.Constraint("PointOnObject", 0, 3, -2))
sketch13.addConstraint(Sketcher.Constraint("PointOnObject", 1, 3, -2))
sketch13.addConstraint(Sketcher.Constraint("Diameter", 0, 2.0))
sketch13.addConstraint(Sketcher.Constraint("DistanceY", 1, 3, -1, 1, 71.0))
sketch13.addConstraint(Sketcher.Constraint("DistanceY", 0, 3, -1, 1, 61.5))
sketch13.setExpression("Constraints[3]", "Params.sketch13_diameter")
pocket11 = body.newObject("PartDesign::Pocket", "Pocket010")
pocket11.Profile = sketch13
pocket11.setExpression("Length", "Params.pocket11_length")

# Sketch on XY plane
sketch14 = body.newObject("Sketcher::SketchObject", "Sketch013")
sketch14.AttachmentSupport = (doc.getObject("XY_Plane"), [""])
sketch14.MapMode = "FlatFace"
sketch14.AttachmentOffset = App.Placement(App.Vector(0, 0, 6), App.Rotation())
sketch14.addGeometry(Part.Circle(App.Vector(0, -61.5, 0), App.Vector(0, 0, 1), 1.2), False)
sketch14.addGeometry(Part.Circle(App.Vector(0, -71, 0), App.Vector(0, 0, 1), 1.2), False)
sketch14.addConstraint(Sketcher.Constraint("Equal", 0, 1))
sketch14.addConstraint(Sketcher.Constraint("PointOnObject", 0, 3, -2))
sketch14.addConstraint(Sketcher.Constraint("PointOnObject", 1, 3, -2))
sketch14.addConstraint(Sketcher.Constraint("Diameter", 0, 2.5))
sketch14.addConstraint(Sketcher.Constraint("DistanceY", 1, 3, -1, 1, 71.0))
sketch14.addConstraint(Sketcher.Constraint("DistanceY", 0, 3, -1, 1, 61.5))
sketch14.setExpression("Constraints[3]", "Params.sketch14_diameter")
doc.recompute()
hole2 = body.newObject("PartDesign::Hole", "Hole001")
hole2.Profile = sketch14
hole2.ThreadType = "None"
hole2.setExpression("Diameter", "Params.hole2_diameter")
hole2.DepthType = "Dimension"
hole2.setExpression("Depth", "Params.hole2_depth")
hole2.DrillPoint = "Angled"
hole2.DrillPointAngle = 118

doc.recompute()
